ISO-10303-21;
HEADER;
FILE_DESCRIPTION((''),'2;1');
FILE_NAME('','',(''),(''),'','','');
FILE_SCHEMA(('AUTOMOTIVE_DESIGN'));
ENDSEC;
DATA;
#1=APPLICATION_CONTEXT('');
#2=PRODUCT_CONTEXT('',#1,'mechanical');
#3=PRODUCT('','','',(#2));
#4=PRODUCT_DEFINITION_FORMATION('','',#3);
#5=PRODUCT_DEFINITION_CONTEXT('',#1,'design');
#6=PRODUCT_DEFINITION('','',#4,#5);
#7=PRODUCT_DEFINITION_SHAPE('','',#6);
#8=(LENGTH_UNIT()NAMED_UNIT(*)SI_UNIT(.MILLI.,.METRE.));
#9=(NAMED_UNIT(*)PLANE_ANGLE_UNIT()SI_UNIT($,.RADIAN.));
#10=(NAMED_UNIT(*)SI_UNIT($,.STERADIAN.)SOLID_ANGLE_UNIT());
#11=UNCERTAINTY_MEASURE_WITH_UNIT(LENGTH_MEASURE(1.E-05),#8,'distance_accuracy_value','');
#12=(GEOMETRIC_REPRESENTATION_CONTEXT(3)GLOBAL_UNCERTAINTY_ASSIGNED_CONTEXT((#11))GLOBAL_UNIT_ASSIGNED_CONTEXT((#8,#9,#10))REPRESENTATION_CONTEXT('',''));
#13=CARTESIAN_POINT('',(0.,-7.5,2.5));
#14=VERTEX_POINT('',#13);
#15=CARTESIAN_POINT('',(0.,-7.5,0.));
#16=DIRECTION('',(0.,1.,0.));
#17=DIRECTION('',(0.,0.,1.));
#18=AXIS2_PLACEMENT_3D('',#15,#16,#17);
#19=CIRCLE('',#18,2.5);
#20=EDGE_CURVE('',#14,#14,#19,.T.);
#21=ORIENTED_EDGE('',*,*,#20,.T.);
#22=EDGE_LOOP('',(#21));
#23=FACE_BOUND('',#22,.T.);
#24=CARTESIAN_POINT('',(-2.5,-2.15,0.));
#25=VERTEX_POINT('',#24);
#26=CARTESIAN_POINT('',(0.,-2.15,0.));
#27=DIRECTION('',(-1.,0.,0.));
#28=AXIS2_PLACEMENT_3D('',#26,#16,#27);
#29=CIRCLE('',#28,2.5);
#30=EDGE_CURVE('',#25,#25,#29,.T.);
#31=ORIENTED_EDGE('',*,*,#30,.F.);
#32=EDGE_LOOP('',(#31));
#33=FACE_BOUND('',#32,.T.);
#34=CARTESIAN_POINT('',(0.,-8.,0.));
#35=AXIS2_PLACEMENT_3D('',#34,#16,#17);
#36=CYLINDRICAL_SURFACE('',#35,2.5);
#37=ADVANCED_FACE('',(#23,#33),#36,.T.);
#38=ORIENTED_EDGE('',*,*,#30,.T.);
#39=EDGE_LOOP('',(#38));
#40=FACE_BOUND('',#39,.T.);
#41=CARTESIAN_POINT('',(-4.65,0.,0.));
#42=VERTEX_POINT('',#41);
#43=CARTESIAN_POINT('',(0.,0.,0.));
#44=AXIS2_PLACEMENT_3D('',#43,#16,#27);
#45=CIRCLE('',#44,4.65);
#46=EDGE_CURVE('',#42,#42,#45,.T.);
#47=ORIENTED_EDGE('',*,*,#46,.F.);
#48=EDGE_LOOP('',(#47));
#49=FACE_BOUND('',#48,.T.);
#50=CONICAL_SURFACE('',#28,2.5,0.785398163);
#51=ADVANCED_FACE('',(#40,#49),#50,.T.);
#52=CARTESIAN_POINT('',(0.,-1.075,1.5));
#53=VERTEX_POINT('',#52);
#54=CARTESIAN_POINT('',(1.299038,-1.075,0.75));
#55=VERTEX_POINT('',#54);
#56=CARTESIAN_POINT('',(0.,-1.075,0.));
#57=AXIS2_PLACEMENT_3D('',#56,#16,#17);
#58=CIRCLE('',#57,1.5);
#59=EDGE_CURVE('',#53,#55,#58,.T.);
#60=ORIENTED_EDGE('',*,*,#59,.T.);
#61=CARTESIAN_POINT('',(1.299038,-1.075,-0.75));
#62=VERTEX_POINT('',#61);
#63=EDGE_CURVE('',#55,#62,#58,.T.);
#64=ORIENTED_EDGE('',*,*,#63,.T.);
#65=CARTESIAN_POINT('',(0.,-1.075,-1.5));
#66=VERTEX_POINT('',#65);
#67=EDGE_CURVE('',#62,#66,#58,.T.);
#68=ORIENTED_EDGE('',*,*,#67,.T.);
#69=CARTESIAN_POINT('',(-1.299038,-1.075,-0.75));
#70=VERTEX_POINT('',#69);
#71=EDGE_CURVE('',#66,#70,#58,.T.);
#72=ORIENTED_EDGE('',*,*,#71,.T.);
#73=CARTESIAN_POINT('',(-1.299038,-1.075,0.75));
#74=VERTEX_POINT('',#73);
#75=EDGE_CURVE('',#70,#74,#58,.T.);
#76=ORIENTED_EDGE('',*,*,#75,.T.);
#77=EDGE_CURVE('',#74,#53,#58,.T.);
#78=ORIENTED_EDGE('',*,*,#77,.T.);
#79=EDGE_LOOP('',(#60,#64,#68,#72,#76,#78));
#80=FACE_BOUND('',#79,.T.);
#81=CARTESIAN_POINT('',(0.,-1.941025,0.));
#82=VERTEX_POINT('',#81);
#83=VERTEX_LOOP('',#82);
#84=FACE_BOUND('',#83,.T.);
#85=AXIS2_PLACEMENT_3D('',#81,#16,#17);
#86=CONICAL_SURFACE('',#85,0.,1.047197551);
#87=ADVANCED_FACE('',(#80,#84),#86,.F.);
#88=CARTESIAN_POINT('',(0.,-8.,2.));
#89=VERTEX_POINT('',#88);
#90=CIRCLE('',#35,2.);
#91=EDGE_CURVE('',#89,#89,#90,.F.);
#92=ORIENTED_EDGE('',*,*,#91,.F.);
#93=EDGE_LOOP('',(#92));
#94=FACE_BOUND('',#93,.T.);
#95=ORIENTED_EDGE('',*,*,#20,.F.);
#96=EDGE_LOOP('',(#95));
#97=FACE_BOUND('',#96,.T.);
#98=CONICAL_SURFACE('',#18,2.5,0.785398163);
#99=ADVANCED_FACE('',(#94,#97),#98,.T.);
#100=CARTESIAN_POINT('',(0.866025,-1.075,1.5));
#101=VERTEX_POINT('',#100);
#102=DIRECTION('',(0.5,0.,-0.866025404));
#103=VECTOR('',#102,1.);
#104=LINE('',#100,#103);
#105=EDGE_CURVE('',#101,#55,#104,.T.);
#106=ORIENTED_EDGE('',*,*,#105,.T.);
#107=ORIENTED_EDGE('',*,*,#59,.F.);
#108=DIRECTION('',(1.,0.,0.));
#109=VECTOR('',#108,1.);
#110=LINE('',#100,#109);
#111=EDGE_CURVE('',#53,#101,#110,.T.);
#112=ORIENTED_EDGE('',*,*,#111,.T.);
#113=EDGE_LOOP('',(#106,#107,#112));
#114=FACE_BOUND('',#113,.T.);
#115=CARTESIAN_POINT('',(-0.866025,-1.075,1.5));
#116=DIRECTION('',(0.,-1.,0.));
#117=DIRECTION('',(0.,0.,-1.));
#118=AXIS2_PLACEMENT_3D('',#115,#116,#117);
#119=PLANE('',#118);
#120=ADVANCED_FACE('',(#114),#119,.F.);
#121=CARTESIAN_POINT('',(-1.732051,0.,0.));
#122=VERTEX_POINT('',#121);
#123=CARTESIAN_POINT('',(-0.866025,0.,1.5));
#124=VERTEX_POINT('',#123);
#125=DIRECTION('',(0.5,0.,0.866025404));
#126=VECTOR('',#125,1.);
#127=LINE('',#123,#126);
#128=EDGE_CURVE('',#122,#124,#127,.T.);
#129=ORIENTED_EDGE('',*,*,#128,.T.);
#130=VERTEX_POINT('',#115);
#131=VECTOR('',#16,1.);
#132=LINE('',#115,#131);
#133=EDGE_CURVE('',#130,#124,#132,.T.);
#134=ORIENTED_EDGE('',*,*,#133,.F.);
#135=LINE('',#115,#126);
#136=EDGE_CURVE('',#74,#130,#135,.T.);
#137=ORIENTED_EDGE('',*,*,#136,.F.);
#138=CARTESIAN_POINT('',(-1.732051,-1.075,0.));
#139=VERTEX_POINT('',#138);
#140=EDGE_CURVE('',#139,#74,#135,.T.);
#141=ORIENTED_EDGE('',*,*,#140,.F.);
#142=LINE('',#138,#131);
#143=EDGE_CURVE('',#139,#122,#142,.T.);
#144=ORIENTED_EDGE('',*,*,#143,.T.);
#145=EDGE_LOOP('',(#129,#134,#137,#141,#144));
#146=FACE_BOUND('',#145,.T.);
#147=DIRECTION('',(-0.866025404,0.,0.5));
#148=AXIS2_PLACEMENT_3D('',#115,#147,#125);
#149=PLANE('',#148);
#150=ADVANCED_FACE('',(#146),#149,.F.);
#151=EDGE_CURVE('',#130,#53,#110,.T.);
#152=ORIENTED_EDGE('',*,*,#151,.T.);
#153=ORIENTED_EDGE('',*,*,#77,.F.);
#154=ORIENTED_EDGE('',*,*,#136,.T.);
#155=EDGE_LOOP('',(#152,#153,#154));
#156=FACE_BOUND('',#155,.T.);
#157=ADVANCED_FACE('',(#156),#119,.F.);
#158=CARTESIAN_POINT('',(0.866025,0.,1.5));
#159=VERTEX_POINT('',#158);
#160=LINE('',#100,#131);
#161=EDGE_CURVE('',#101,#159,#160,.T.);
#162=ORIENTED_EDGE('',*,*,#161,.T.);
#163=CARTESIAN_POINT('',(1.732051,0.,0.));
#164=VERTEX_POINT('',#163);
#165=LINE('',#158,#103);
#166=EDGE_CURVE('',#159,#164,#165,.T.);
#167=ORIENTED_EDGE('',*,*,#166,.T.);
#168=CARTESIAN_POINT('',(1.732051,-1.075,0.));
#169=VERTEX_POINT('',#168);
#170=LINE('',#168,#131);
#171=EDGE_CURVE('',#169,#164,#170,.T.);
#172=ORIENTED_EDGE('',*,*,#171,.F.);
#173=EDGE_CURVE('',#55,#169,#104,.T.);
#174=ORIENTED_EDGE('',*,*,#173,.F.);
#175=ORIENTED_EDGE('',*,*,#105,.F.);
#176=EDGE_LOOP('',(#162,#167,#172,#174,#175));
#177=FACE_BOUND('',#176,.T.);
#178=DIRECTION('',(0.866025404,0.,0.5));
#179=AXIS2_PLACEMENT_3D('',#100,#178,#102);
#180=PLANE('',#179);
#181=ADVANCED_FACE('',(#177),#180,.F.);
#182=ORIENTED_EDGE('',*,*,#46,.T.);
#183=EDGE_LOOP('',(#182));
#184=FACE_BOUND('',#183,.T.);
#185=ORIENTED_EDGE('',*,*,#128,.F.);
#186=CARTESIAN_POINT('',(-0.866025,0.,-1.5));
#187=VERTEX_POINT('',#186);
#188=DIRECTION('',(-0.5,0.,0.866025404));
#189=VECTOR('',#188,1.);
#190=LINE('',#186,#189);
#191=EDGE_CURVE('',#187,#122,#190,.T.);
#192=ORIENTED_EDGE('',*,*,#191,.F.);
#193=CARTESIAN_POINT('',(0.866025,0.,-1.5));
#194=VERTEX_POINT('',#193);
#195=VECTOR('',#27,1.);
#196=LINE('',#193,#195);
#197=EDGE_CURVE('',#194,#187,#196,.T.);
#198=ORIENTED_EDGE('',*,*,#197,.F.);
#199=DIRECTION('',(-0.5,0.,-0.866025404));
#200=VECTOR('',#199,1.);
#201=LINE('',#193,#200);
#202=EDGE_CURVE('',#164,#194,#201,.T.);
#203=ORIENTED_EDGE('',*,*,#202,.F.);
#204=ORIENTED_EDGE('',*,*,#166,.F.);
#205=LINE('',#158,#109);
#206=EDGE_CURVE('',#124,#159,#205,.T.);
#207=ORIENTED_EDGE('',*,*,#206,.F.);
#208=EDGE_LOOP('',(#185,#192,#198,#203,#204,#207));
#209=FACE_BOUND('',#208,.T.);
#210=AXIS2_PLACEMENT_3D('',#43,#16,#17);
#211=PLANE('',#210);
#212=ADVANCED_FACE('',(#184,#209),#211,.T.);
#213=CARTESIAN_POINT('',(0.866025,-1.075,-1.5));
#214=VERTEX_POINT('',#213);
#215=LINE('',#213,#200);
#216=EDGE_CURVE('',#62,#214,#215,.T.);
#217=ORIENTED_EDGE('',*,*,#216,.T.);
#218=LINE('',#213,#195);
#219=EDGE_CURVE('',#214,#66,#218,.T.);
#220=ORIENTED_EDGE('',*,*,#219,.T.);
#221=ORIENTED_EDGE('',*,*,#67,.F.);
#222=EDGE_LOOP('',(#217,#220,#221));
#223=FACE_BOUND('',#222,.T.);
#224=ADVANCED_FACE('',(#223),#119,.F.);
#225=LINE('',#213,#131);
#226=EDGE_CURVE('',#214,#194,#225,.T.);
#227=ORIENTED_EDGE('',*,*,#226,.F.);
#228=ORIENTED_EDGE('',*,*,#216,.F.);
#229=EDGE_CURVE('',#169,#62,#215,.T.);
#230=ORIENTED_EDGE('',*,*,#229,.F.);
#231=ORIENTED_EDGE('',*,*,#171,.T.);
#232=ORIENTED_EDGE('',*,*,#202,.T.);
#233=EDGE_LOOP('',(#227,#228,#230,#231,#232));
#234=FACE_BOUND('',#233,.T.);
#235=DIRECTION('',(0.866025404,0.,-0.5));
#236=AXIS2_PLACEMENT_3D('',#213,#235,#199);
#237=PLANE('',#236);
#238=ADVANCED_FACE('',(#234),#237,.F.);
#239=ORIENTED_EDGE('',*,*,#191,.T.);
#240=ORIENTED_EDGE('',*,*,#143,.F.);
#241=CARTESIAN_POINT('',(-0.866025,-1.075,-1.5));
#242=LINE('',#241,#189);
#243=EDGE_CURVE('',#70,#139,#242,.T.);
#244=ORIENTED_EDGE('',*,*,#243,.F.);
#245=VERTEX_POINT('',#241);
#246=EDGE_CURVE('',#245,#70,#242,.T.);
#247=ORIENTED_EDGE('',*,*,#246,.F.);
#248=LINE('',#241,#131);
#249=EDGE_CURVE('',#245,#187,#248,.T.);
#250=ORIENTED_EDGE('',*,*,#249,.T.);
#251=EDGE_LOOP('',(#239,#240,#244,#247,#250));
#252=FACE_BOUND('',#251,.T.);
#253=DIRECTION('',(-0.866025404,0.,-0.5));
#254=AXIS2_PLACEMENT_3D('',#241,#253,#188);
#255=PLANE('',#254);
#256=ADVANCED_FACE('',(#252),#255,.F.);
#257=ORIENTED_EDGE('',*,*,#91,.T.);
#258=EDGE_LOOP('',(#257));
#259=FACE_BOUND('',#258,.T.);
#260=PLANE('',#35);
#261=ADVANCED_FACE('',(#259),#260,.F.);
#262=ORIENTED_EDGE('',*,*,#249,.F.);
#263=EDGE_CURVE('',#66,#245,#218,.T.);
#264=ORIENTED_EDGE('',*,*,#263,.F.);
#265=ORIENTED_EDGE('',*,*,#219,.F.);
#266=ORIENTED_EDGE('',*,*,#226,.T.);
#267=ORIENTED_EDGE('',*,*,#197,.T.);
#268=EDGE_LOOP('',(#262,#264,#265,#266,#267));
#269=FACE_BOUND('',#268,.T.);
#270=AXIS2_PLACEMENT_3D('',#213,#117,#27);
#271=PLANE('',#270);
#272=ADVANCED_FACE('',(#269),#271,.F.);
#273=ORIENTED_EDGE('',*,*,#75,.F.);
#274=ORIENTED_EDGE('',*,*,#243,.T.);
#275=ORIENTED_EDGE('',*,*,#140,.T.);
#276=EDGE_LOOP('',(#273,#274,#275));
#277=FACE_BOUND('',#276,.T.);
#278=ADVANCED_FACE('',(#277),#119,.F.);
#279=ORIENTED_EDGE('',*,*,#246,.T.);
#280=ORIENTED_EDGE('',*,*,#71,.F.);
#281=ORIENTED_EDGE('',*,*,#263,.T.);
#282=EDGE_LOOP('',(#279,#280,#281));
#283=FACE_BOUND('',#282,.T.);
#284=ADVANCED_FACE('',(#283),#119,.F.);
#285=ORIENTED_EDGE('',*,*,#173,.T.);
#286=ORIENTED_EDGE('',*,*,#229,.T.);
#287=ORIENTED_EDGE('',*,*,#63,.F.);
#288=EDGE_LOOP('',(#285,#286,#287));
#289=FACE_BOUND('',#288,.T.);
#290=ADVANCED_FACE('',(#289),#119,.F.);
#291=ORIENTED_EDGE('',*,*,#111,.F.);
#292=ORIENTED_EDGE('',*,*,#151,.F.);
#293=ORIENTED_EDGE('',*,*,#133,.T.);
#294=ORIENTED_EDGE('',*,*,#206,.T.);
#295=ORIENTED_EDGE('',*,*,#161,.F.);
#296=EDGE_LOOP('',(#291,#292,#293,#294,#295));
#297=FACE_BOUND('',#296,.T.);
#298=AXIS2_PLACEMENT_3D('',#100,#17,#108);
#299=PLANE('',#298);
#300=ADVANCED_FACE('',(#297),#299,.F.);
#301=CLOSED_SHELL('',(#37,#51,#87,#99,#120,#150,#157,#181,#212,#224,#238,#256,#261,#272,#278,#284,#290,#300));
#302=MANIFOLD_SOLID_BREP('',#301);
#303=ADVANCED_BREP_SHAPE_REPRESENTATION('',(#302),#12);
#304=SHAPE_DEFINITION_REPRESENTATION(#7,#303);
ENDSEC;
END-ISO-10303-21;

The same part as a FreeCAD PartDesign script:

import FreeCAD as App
import Part
import Sketcher
Q = App.Units.Quantity


def edges_at(feature, points):
    """Names of the edges that pass closest to the given points."""
    edges = feature.Shape.Edges
    near = lambda p: min(range(len(edges)), key=lambda i: edges[i].distToShape(Part.Vertex(*p))[0])
    return sorted({f"Edge{near(p) + 1}" for p in points})

doc = App.newDocument("Part")
body = doc.addObject("PartDesign::Body", "Body")

# Sketch on XZ plane
sketch1 = body.newObject("Sketcher::SketchObject", "Sketch")
sketch1.AttachmentSupport = (doc.getObject("XZ_Plane"), [""])
sketch1.MapMode = "FlatFace"
sketch1.AttachmentOffset = App.Placement(App.Vector(0, 0, 8), App.Rotation())
sketch1.addGeometry(Part.Circle(App.Vector(0, 0, 0), App.Vector(0, 0, 1), 2.5), False)
sketch1.addConstraint([
    Sketcher.Constraint("Coincident", 0, 3, -1, 1),
    Sketcher.Constraint("Diameter", 0, Q("5 mm")),
])
pad1 = body.newObject("PartDesign::Pad", "Pad")
pad1.Profile = sketch1
pad1.Length = 8
pad1.Reversed = True
doc.recompute()

chamfer = body.newObject("PartDesign::Chamfer", "Chamfer")
chamfer.Base = (pad1, edges_at(pad1, [(0, -8, -2.5)]))
chamfer.Size = 0.5

# Sketch on XY plane
sketch2 = body.newObject("Sketcher::SketchObject", "Sketch001")
sketch2.AttachmentSupport = (doc.getObject("XY_Plane"), [""])
sketch2.MapMode = "FlatFace"
sketch2.addGeometry([
    Part.LineSegment(App.Vector(4.7, 0, 0), App.Vector(0, 0, 0)),
    Part.LineSegment(App.Vector(0, 0, 0), App.Vector(0, -2.1, 0)),
    Part.LineSegment(App.Vector(0, -2.1, 0), App.Vector(2.5, -2.1, 0)),
    Part.LineSegment(App.Vector(2.5, -2.1, 0), App.Vector(4.7, 0, 0)),
], False)
sketch2.addConstraint([
    Sketcher.Constraint("Coincident", 0, 2, 1, 1),
    Sketcher.Constraint("Coincident", 1, 2, 2, 1),
    Sketcher.Constraint("Coincident", 2, 2, 3, 1),
    Sketcher.Constraint("Coincident", 3, 2, 0, 1),
    Sketcher.Constraint("Horizontal", 0),
    Sketcher.Constraint("Vertical", 1),
    Sketcher.Constraint("Horizontal", 2),
    Sketcher.Constraint("Coincident", 0, 2, -1, 1),
    Sketcher.Constraint("Angle", 3, Q("45 deg")),
    Sketcher.Constraint("DistanceX", 2, 1, 2, 2, Q("2.5 mm")),
    Sketcher.Constraint("DistanceX", 0, 2, 0, 1, Q("4.65 mm")),
])
revolution = body.newObject("PartDesign::Revolution", "Revolution")
revolution.Profile = sketch2
revolution.ReferenceAxis = (sketch2, ["V_Axis"])
revolution.Angle = 360

# Sketch on XY plane
sketch3 = body.newObject("Sketcher::SketchObject", "Sketch002")
sketch3.AttachmentSupport = (doc.getObject("XY_Plane"), [""])
sketch3.MapMode = "FlatFace"
sketch3.addGeometry([
    Part.LineSegment(App.Vector(1.5, -1.1, 0), App.Vector(1.5, 0, 0)),
    Part.LineSegment(App.Vector(1.5, 0, 0), App.Vector(0, 0, 0)),
    Part.LineSegment(App.Vector(0, 0, 0), App.Vector(0, -1.9, 0)),
    Part.LineSegment(App.Vector(0, -1.9, 0), App.Vector(1.5, -1.1, 0)),
], False)
sketch3.addConstraint([
    Sketcher.Constraint("Coincident", 0, 2, 1, 1),
    Sketcher.Constraint("Coincident", 1, 2, 2, 1),
    Sketcher.Constraint("Coincident", 2, 2, 3, 1),
    Sketcher.Constraint("Coincident", 3, 2, 0, 1),
    Sketcher.Constraint("Vertical", 0),
    Sketcher.Constraint("Horizontal", 1),
    Sketcher.Constraint("Vertical", 2),
    Sketcher.Constraint("Coincident", 1, 2, -1, 1),
    Sketcher.Constraint("Angle", 3, Q("30 deg")),
    Sketcher.Constraint("DistanceX", 1, 2, 1, 1, Q("1.5 mm")),
    Sketcher.Constraint("DistanceY", 0, 1, 0, 2, Q("1.075 mm")),
])
groove = body.newObject("PartDesign::Groove", "Groove")
groove.Profile = sketch3
groove.ReferenceAxis = (sketch3, ["V_Axis"])
groove.Angle = 360

# Sketch on XZ plane
sketch4 = body.newObject("Sketcher::SketchObject", "Sketch003")
sketch4.AttachmentSupport = (doc.getObject("XZ_Plane"), [""])
sketch4.MapMode = "FlatFace"
sketch4.addGeometry([
    Part.LineSegment(App.Vector(0.9, -1.5, 0), App.Vector(-0.9, -1.5, 0)),  # 0
    Part.LineSegment(App.Vector(-0.9, -1.5, 0), App.Vector(-1.7, 0, 0)),  # 1
    Part.LineSegment(App.Vector(-1.7, 0, 0), App.Vector(-0.9, 1.5, 0)),  # 2
    Part.LineSegment(App.Vector(-0.9, 1.5, 0), App.Vector(0.9, 1.5, 0)),  # 3
    Part.LineSegment(App.Vector(0.9, 1.5, 0), App.Vector(1.7, 0, 0)),  # 4
    Part.LineSegment(App.Vector(1.7, 0, 0), App.Vector(0.9, -1.5, 0)),  # 5
], False)
sketch4.addConstraint([
    Sketcher.Constraint("Coincident", 0, 2, 1, 1),
    Sketcher.Constraint("Coincident", 1, 2, 2, 1),
    Sketcher.Constraint("Coincident", 2, 2, 3, 1),
    Sketcher.Constraint("Coincident", 3, 2, 4, 1),
    Sketcher.Constraint("Coincident", 4, 2, 5, 1),
    Sketcher.Constraint("Coincident", 5, 2, 0, 1),
    Sketcher.Constraint("Horizontal", 0),
    Sketcher.Constraint("Horizontal", 3),
    Sketcher.Constraint("Symmetric", 0, 2, 3, 2, -1, 1),
    Sketcher.Constraint("Symmetric", 1, 2, 4, 2, -1, 1),
    Sketcher.Constraint("PointOnObject", 1, 2, -1),
    Sketcher.Constraint("Parallel", 2, 5),
    Sketcher.Constraint("Vertical", 0, 2, 2, 2),
    Sketcher.Constraint("Angle", 1, Q("120 deg")),
    Sketcher.Constraint("DistanceY", 0, 2, 2, 2, Q("3 mm")),
    Sketcher.Constraint("DistanceX", 0, 2, 0, 1, Q("1.732051 mm")),
])
pocket1 = body.newObject("PartDesign::Pocket", "Pocket")
pocket1.Profile = sketch4
pocket1.Length = 1.075
pocket1.Reversed = True

doc.recompute()
